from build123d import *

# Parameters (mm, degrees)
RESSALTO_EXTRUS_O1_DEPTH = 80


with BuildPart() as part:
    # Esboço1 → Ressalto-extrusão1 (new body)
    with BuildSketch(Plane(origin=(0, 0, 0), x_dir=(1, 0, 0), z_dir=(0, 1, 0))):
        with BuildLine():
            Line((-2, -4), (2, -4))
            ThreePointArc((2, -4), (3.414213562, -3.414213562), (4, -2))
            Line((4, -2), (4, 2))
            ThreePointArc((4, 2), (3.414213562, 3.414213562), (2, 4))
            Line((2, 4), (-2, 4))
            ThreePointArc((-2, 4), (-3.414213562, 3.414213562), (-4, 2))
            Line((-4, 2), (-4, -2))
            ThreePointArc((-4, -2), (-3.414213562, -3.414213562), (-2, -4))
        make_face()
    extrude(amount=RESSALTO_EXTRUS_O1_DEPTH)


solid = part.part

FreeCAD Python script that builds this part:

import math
import FreeCAD as App
import Part
import Sketcher
Q = App.Units.Quantity

doc = App.newDocument("Part")
body = doc.addObject("PartDesign::Body", "Body")

# Sketch on XZ plane
sketch1 = body.newObject("Sketcher::SketchObject", "Sketch")
sketch1.AttachmentSupport = (doc.getObject("XZ_Plane"), [""])
sketch1.MapMode = "FlatFace"
sketch1.addGeometry([
    Part.LineSegment(App.Vector(-2, 4, 0), App.Vector(2, 4, 0)),  # 0
    Part.ArcOfCircle(Part.Circle(App.Vector(2, 2, 0), App.Vector(0, 0, 1), 2), math.radians(0), math.radians(90)),  # 1
    Part.LineSegment(App.Vector(4, 2, 0), App.Vector(4, -2, 0)),  # 2
    Part.ArcOfCircle(Part.Circle(App.Vector(2, -2, 0), App.Vector(0, 0, 1), 2), math.radians(-90), math.radians(0)),  # 3
    Part.LineSegment(App.Vector(2, -4, 0), App.Vector(-2, -4, 0)),  # 4
    Part.ArcOfCircle(Part.Circle(App.Vector(-2, -2, 0), App.Vector(0, 0, 1), 2), math.radians(-180), math.radians(-90)),  # 5
    Part.LineSegment(App.Vector(-4, -2, 0), App.Vector(-4, 2, 0)),  # 6
    Part.ArcOfCircle(Part.Circle(App.Vector(-2, 2, 0), App.Vector(0, 0, 1), 2), math.radians(90), math.radians(180)),  # 7
], False)
sketch1.addConstraint([
    Sketcher.Constraint("Tangent", 0, 2, 1, 2),
    Sketcher.Constraint("Tangent", 1, 1, 2, 1),
    Sketcher.Constraint("Tangent", 2, 2, 3, 2),
    Sketcher.Constraint("Tangent", 3, 1, 4, 1),
    Sketcher.Constraint("Tangent", 4, 2, 5, 2),
    Sketcher.Constraint("Tangent", 5, 1, 6, 1),
    Sketcher.Constraint("Tangent", 6, 2, 7, 2),
    Sketcher.Constraint("Tangent", 7, 1, 0, 1),
    Sketcher.Constraint("Horizontal", 0),
    Sketcher.Constraint("Vertical", 2),
    Sketcher.Constraint("Horizontal", 4),
    Sketcher.Constraint("Vertical", 6),
    Sketcher.Constraint("Equal", 1, 3),
    Sketcher.Constraint("Equal", 3, 5),
    Sketcher.Constraint("Equal", 5, 7),
    Sketcher.Constraint("Symmetric", 1, 3, 5, 3, -1, 1),
    Sketcher.Constraint("Equal", 4, 2),
    Sketcher.Constraint("Radius", 1, Q("2 mm")),
    Sketcher.Constraint("DistanceX", 0, 1, 0, 2, Q("4 mm")),
])
pad1 = body.newObject("PartDesign::Pad", "Pad")
pad1.Profile = sketch1
pad1.Length = 80
pad1.Reversed = True

doc.recompute()
